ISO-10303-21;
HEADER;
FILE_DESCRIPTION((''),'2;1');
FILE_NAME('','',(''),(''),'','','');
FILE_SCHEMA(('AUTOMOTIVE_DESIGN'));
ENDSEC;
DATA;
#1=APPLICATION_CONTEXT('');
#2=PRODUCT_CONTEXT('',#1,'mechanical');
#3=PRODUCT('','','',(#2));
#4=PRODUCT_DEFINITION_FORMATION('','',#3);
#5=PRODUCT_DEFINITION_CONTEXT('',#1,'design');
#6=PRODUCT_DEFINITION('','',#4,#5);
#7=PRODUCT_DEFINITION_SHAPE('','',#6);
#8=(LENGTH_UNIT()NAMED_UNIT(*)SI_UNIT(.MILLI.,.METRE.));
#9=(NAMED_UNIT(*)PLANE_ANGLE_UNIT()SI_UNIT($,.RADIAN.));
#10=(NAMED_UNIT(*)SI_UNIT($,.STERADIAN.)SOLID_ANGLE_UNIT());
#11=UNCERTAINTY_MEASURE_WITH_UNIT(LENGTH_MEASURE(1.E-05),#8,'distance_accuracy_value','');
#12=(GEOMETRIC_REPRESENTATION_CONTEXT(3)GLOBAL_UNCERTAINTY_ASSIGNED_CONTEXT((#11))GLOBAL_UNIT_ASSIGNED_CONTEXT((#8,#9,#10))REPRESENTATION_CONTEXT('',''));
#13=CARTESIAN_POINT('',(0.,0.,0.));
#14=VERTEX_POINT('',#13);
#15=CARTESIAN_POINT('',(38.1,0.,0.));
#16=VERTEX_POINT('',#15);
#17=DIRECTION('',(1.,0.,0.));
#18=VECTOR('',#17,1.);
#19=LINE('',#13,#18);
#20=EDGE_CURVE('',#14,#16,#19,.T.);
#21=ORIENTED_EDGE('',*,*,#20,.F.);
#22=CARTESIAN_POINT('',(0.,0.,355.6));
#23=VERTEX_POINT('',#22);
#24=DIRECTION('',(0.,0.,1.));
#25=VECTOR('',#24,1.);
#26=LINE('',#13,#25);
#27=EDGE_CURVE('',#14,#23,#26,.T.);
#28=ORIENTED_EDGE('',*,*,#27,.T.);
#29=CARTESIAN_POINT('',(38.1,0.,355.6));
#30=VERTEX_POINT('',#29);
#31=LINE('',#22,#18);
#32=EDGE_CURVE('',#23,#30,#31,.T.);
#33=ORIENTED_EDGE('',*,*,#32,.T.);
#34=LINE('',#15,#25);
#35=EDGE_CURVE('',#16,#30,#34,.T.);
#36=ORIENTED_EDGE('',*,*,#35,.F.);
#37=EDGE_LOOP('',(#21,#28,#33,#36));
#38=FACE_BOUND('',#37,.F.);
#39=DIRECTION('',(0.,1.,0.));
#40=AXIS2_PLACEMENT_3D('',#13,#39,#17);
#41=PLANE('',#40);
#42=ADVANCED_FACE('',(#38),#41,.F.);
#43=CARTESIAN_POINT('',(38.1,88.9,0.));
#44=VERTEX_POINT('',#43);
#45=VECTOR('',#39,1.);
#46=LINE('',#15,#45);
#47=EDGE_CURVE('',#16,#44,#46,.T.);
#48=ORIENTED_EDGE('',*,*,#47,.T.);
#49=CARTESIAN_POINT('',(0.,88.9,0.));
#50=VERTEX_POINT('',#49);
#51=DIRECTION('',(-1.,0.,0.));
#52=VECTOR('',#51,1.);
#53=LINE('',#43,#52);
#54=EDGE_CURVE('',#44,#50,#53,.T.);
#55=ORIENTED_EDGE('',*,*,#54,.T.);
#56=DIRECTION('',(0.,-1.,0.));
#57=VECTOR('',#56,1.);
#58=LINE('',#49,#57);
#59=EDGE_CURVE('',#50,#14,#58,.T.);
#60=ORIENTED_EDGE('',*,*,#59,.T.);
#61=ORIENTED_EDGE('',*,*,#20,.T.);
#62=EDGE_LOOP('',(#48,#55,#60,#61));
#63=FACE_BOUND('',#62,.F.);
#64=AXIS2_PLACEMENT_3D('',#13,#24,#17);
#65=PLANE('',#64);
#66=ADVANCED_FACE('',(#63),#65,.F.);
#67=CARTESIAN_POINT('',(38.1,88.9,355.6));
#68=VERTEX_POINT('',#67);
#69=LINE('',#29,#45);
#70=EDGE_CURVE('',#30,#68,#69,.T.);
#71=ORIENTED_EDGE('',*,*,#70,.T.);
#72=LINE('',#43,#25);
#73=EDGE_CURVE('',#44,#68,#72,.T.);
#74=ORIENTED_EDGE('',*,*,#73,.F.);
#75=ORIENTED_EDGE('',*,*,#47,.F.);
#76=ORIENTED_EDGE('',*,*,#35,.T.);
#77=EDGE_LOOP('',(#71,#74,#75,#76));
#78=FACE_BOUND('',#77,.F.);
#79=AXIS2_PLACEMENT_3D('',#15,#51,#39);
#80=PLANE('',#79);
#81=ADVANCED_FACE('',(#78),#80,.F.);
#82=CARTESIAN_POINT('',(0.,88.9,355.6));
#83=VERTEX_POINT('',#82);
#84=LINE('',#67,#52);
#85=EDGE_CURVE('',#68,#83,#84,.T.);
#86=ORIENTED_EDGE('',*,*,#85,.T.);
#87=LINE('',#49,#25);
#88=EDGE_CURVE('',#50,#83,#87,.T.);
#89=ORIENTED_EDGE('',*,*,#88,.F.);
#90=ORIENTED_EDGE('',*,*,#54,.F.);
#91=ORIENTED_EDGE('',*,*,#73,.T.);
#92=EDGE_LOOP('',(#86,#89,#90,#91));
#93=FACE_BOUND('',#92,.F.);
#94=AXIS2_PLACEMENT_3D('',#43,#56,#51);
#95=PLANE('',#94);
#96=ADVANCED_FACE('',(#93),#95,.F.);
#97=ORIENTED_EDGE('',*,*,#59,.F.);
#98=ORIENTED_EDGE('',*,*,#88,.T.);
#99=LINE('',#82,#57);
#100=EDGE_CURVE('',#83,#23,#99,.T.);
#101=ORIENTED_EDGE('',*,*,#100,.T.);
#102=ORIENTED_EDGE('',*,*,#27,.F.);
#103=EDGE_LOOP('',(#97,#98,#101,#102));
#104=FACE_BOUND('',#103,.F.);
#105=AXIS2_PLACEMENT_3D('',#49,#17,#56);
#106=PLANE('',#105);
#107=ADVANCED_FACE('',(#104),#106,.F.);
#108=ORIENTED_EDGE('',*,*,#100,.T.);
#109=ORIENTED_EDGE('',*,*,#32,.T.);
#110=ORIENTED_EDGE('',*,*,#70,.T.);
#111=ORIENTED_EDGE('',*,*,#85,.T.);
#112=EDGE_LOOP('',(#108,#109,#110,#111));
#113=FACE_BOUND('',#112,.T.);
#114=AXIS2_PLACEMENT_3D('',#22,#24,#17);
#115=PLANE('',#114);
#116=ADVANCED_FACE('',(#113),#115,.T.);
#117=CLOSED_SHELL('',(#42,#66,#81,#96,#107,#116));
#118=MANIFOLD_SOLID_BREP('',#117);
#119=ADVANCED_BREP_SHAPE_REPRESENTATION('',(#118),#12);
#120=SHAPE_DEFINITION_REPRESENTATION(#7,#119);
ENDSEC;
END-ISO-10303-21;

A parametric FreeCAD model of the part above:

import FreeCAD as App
import Part
import Sketcher
from FreeCAD import Vector
Q = App.Units.Quantity

doc = App.newDocument("Part")
body = doc.addObject("PartDesign::Body", "Body")

sketch1 = body.newObject("Sketcher::SketchObject", "Sketch")
sketch1.AttachmentSupport = (doc.getObject("XY_Plane"), [""])
sketch1.MapMode = "FlatFace"
sketch1.addGeometry([
    Part.LineSegment(Vector(0, 88.9, 0), Vector(0, 0, 0)),
    Part.LineSegment(Vector(0, 0, 0), Vector(38.1, 0, 0)),
    Part.LineSegment(Vector(38.1, 0, 0), Vector(38.1, 88.9, 0)),
    Part.LineSegment(Vector(38.1, 88.9, 0), Vector(0, 88.9, 0)),
], False)
sketch1.addConstraint([
    Sketcher.Constraint("Coincident", 0, 2, 1, 1),
    Sketcher.Constraint("Coincident", 1, 2, 2, 1),
    Sketcher.Constraint("Coincident", 2, 2, 3, 1),
    Sketcher.Constraint("Coincident", 3, 2, 0, 1),
    Sketcher.Constraint("Vertical", 0),
    Sketcher.Constraint("Horizontal", 1),
    Sketcher.Constraint("Vertical", 2),
    Sketcher.Constraint("Horizontal", 3),
    Sketcher.Constraint("Coincident", 0, 2, -1, 1),
    Sketcher.Constraint("DistanceX", 1, 1, 1, 2, Q("1.5 in")),
    Sketcher.Constraint("DistanceY", 0, 2, 0, 1, Q("3.5 in")),
])
pad1 = body.newObject("PartDesign::Pad", "Pad")
pad1.Profile = sketch1
pad1.Length = Q("14 in")

doc.recompute()
